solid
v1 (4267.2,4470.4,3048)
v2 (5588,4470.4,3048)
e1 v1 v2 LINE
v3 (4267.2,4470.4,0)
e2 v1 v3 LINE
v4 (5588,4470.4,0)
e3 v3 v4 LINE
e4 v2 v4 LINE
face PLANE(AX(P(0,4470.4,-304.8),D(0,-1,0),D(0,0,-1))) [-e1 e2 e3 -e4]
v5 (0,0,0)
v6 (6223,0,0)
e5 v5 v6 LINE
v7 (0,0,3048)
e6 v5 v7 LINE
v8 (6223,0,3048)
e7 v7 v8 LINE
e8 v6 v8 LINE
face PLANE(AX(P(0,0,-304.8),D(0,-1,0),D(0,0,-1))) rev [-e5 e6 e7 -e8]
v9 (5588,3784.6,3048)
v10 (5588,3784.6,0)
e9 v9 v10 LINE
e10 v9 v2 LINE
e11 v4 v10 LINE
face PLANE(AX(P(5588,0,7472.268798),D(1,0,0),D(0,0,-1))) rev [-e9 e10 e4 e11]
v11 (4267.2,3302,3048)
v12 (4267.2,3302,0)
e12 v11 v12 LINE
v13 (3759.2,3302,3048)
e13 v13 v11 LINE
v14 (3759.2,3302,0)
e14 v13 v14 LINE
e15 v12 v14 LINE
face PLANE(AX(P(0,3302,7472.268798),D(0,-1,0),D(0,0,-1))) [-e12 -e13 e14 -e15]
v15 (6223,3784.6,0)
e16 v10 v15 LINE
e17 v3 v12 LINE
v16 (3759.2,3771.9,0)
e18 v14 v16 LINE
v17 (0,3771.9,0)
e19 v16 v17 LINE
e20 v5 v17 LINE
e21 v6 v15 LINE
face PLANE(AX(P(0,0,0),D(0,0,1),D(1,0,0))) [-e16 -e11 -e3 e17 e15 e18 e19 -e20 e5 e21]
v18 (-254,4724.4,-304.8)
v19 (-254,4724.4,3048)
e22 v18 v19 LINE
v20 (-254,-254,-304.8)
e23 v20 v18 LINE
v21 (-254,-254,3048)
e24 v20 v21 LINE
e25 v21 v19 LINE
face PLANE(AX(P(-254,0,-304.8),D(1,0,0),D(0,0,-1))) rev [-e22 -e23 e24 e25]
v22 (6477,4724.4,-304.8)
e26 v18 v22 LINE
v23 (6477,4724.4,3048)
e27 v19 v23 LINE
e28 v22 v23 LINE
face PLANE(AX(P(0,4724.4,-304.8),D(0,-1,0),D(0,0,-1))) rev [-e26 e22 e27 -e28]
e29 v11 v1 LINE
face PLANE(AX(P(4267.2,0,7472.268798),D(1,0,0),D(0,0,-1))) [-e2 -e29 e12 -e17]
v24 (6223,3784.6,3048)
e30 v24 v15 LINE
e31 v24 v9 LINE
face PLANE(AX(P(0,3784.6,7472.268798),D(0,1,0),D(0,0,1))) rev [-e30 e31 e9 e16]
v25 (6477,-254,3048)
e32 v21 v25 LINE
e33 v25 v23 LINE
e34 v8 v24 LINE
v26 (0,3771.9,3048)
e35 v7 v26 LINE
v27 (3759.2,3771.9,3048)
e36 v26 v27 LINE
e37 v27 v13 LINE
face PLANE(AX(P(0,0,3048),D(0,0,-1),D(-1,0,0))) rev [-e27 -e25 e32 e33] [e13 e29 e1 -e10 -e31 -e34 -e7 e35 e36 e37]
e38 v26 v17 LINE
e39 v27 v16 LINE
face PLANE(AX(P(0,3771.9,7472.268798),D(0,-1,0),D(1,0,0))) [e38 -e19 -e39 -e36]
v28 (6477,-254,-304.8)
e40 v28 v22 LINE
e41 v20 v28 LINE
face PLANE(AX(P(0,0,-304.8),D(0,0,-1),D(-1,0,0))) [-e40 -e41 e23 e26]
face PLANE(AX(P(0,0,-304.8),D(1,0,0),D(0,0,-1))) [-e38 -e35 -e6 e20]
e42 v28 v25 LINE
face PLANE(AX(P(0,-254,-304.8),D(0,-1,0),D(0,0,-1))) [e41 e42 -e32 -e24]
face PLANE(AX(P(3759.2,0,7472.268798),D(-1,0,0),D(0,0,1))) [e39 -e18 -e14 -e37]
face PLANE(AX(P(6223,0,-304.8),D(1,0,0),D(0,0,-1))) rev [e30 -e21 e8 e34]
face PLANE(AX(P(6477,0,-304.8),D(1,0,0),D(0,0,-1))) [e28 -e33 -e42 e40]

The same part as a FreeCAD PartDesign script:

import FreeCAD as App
import Part
import Sketcher
Q = App.Units.Quantity


def add_polygon(sketch, points):
    """Adds a closed chain of lines whose ends are joined by coincident constraints."""
    first, n = sketch.GeometryCount, len(points)
    for a, b in zip(points, points[1:] + points[:1]):
        sketch.addGeometry(Part.LineSegment(App.Vector(*a, 0), App.Vector(*b, 0)), False)
    for i in range(n):
        sketch.addConstraint(Sketcher.Constraint("Coincident", first + i, 2, first + (i + 1) % n, 1))

doc = App.newDocument("Part")
body = doc.addObject("PartDesign::Body", "Body")

# Sketch on XY plane
sketch1 = body.newObject("Sketcher::SketchObject", "Sketch")
sketch1.AttachmentSupport = (doc.getObject("XY_Plane"), [""])
sketch1.MapMode = "FlatFace"
add_polygon(sketch1, [(-254, 4724.4), (-254, -254), (6477, -254), (6477, 4724.4)])  # lines 0-3
add_polygon(sketch1, [(6223, 0), (0, 0), (0, 4470.4), (6223, 4470.4)])  # lines 4-7
sketch1.addConstraint([
    Sketcher.Constraint("Vertical", 0),
    Sketcher.Constraint("Horizontal", 1),
    Sketcher.Constraint("Vertical", 2),
    Sketcher.Constraint("Horizontal", 3),
    Sketcher.Constraint("Horizontal", 4),
    Sketcher.Constraint("Vertical", 5),
    Sketcher.Constraint("Horizontal", 6),
    Sketcher.Constraint("Vertical", 7),
    Sketcher.Constraint("Coincident", 4, 2, -1, 1),
    Sketcher.Constraint("DistanceX", 1, 1, 1, 2, Q("265 in")),
    Sketcher.Constraint("DistanceX", 4, 2, 4, 1, Q("245 in")),
    Sketcher.Constraint("DistanceY", 0, 2, 0, 1, Q("196 in")),
    Sketcher.Constraint("DistanceY", 5, 1, 5, 2, Q("176 in")),
    Sketcher.Constraint("DistanceX", 0, 2, -1, 1, Q("10 in")),
    Sketcher.Constraint("DistanceY", 0, 2, -1, 1, Q("10 in")),
])
pad1 = body.newObject("PartDesign::Pad", "Pad")
pad1.Profile = sketch1
pad1.Type = "TwoLengths"
pad1.Length = Q("120 in")
pad1.Length2 = Q("12 in")

# Sketch on XY plane
sketch2 = body.newObject("Sketcher::SketchObject", "Sketch001")
sketch2.AttachmentSupport = (doc.getObject("XY_Plane"), [""])
sketch2.MapMode = "FlatFace"
add_polygon(sketch2, [(0, 4470.4), (0, 0), (6223, 0), (6223, 4470.4)])  # lines 0-3
sketch2.addConstraint([
    Sketcher.Constraint("Vertical", 0),
    Sketcher.Constraint("Horizontal", 1),
    Sketcher.Constraint("Vertical", 2),
    Sketcher.Constraint("Horizontal", 3),
    Sketcher.Constraint("Coincident", 0, 2, -1, 1),
    Sketcher.Constraint("DistanceX", 1, 1, 1, 2, Q("245 in")),
    Sketcher.Constraint("DistanceY", 0, 2, 0, 1, Q("176 in")),
])
pad2 = body.newObject("PartDesign::Pad", "Pad001")
pad2.Profile = sketch2
pad2.Length = Q("12 in")
pad2.Reversed = True

# Sketch on XY plane
sketch3 = body.newObject("Sketcher::SketchObject", "Sketch002")
sketch3.AttachmentSupport = (doc.getObject("XY_Plane"), [""])
sketch3.MapMode = "FlatFace"
add_polygon(sketch3, [(0, 4470.4), (0, 3771.9), (3759.2, 3771.9), (3759.2, 3302), (4267.2, 3302), (4267.2, 4470.4)])  # lines 0-5
add_polygon(sketch3, [(5588, 4470.4), (5588, 3784.6), (6223, 3784.6), (6223, 4470.4)])  # lines 6-9
sketch3.addConstraint([
    Sketcher.Constraint("Vertical", 0),
    Sketcher.Constraint("Horizontal", 1),
    Sketcher.Constraint("Vertical", 2),
    Sketcher.Constraint("Horizontal", 3),
    Sketcher.Constraint("Vertical", 4),
    Sketcher.Constraint("Horizontal", 5),
    Sketcher.Constraint("Vertical", 6),
    Sketcher.Constraint("Horizontal", 7),
    Sketcher.Constraint("Vertical", 8),
    Sketcher.Constraint("Horizontal", 9),
    Sketcher.Constraint("PointOnObject", 0, 2, -2),
    Sketcher.Constraint("Horizontal", 5, 2, 8, 2),
    Sketcher.Constraint("DistanceX", 1, 1, 1, 2, Q("148 in")),
    Sketcher.Constraint("DistanceX", 3, 1, 3, 2, Q("20 in")),
    Sketcher.Constraint("DistanceX", 7, 1, 7, 2, Q("25 in")),
    Sketcher.Constraint("DistanceY", 4, 1, 4, 2, Q("46 in")),
    Sketcher.Constraint("DistanceY", 6, 2, 6, 1, Q("27 in")),
    Sketcher.Constraint("DistanceY", 0, 2, 0, 1, Q("27.5 in")),
    Sketcher.Constraint("DistanceY", -1, 1, 2, 2, Q("130 in")),
    Sketcher.Constraint("DistanceX", -1, 1, 6, 2, Q("220 in")),
])
pad3 = body.newObject("PartDesign::Pad", "Pad002")
pad3.Profile = sketch3
pad3.Length = Q("120 in")

doc.recompute()
